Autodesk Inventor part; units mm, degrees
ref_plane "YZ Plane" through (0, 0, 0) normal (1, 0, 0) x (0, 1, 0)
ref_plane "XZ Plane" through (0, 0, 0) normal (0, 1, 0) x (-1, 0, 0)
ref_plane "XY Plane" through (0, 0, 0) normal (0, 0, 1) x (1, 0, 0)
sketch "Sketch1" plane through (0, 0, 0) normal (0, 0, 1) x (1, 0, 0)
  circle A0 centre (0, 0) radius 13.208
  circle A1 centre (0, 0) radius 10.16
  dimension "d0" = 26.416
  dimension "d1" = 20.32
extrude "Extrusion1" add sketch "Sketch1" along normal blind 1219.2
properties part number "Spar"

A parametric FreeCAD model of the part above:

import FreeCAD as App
import Part
import Sketcher

V = App.Vector
Q = App.Units.Quantity

doc = App.newDocument("Part")
body = doc.addObject("PartDesign::Body", "Body")

# Sketch on XY plane
sketch1 = body.newObject("Sketcher::SketchObject", "Sketch")
sketch1.AttachmentSupport = (doc.getObject("XY_Plane"), [""])
sketch1.MapMode = "FlatFace"
sketch1.addGeometry([
    Part.Circle(V(0, 0, 0), V(0, 0, 1), 13),
    Part.Circle(V(0, 0, 0), V(0, 0, 1), 10),
], False)
sketch1.addConstraint([
    Sketcher.Constraint("Coincident", 0, 3, -1, 1),
    Sketcher.Constraint("Coincident", 1, 3, -1, 1),
    Sketcher.Constraint("Diameter", 1, Q("0.8 in")),
    Sketcher.Constraint("Diameter", 0, Q("1.04 in")),
])
pad1 = body.newObject("PartDesign::Pad", "Pad")
pad1.Profile = sketch1
pad1.Length = Q("48 in")

doc.recompute()
